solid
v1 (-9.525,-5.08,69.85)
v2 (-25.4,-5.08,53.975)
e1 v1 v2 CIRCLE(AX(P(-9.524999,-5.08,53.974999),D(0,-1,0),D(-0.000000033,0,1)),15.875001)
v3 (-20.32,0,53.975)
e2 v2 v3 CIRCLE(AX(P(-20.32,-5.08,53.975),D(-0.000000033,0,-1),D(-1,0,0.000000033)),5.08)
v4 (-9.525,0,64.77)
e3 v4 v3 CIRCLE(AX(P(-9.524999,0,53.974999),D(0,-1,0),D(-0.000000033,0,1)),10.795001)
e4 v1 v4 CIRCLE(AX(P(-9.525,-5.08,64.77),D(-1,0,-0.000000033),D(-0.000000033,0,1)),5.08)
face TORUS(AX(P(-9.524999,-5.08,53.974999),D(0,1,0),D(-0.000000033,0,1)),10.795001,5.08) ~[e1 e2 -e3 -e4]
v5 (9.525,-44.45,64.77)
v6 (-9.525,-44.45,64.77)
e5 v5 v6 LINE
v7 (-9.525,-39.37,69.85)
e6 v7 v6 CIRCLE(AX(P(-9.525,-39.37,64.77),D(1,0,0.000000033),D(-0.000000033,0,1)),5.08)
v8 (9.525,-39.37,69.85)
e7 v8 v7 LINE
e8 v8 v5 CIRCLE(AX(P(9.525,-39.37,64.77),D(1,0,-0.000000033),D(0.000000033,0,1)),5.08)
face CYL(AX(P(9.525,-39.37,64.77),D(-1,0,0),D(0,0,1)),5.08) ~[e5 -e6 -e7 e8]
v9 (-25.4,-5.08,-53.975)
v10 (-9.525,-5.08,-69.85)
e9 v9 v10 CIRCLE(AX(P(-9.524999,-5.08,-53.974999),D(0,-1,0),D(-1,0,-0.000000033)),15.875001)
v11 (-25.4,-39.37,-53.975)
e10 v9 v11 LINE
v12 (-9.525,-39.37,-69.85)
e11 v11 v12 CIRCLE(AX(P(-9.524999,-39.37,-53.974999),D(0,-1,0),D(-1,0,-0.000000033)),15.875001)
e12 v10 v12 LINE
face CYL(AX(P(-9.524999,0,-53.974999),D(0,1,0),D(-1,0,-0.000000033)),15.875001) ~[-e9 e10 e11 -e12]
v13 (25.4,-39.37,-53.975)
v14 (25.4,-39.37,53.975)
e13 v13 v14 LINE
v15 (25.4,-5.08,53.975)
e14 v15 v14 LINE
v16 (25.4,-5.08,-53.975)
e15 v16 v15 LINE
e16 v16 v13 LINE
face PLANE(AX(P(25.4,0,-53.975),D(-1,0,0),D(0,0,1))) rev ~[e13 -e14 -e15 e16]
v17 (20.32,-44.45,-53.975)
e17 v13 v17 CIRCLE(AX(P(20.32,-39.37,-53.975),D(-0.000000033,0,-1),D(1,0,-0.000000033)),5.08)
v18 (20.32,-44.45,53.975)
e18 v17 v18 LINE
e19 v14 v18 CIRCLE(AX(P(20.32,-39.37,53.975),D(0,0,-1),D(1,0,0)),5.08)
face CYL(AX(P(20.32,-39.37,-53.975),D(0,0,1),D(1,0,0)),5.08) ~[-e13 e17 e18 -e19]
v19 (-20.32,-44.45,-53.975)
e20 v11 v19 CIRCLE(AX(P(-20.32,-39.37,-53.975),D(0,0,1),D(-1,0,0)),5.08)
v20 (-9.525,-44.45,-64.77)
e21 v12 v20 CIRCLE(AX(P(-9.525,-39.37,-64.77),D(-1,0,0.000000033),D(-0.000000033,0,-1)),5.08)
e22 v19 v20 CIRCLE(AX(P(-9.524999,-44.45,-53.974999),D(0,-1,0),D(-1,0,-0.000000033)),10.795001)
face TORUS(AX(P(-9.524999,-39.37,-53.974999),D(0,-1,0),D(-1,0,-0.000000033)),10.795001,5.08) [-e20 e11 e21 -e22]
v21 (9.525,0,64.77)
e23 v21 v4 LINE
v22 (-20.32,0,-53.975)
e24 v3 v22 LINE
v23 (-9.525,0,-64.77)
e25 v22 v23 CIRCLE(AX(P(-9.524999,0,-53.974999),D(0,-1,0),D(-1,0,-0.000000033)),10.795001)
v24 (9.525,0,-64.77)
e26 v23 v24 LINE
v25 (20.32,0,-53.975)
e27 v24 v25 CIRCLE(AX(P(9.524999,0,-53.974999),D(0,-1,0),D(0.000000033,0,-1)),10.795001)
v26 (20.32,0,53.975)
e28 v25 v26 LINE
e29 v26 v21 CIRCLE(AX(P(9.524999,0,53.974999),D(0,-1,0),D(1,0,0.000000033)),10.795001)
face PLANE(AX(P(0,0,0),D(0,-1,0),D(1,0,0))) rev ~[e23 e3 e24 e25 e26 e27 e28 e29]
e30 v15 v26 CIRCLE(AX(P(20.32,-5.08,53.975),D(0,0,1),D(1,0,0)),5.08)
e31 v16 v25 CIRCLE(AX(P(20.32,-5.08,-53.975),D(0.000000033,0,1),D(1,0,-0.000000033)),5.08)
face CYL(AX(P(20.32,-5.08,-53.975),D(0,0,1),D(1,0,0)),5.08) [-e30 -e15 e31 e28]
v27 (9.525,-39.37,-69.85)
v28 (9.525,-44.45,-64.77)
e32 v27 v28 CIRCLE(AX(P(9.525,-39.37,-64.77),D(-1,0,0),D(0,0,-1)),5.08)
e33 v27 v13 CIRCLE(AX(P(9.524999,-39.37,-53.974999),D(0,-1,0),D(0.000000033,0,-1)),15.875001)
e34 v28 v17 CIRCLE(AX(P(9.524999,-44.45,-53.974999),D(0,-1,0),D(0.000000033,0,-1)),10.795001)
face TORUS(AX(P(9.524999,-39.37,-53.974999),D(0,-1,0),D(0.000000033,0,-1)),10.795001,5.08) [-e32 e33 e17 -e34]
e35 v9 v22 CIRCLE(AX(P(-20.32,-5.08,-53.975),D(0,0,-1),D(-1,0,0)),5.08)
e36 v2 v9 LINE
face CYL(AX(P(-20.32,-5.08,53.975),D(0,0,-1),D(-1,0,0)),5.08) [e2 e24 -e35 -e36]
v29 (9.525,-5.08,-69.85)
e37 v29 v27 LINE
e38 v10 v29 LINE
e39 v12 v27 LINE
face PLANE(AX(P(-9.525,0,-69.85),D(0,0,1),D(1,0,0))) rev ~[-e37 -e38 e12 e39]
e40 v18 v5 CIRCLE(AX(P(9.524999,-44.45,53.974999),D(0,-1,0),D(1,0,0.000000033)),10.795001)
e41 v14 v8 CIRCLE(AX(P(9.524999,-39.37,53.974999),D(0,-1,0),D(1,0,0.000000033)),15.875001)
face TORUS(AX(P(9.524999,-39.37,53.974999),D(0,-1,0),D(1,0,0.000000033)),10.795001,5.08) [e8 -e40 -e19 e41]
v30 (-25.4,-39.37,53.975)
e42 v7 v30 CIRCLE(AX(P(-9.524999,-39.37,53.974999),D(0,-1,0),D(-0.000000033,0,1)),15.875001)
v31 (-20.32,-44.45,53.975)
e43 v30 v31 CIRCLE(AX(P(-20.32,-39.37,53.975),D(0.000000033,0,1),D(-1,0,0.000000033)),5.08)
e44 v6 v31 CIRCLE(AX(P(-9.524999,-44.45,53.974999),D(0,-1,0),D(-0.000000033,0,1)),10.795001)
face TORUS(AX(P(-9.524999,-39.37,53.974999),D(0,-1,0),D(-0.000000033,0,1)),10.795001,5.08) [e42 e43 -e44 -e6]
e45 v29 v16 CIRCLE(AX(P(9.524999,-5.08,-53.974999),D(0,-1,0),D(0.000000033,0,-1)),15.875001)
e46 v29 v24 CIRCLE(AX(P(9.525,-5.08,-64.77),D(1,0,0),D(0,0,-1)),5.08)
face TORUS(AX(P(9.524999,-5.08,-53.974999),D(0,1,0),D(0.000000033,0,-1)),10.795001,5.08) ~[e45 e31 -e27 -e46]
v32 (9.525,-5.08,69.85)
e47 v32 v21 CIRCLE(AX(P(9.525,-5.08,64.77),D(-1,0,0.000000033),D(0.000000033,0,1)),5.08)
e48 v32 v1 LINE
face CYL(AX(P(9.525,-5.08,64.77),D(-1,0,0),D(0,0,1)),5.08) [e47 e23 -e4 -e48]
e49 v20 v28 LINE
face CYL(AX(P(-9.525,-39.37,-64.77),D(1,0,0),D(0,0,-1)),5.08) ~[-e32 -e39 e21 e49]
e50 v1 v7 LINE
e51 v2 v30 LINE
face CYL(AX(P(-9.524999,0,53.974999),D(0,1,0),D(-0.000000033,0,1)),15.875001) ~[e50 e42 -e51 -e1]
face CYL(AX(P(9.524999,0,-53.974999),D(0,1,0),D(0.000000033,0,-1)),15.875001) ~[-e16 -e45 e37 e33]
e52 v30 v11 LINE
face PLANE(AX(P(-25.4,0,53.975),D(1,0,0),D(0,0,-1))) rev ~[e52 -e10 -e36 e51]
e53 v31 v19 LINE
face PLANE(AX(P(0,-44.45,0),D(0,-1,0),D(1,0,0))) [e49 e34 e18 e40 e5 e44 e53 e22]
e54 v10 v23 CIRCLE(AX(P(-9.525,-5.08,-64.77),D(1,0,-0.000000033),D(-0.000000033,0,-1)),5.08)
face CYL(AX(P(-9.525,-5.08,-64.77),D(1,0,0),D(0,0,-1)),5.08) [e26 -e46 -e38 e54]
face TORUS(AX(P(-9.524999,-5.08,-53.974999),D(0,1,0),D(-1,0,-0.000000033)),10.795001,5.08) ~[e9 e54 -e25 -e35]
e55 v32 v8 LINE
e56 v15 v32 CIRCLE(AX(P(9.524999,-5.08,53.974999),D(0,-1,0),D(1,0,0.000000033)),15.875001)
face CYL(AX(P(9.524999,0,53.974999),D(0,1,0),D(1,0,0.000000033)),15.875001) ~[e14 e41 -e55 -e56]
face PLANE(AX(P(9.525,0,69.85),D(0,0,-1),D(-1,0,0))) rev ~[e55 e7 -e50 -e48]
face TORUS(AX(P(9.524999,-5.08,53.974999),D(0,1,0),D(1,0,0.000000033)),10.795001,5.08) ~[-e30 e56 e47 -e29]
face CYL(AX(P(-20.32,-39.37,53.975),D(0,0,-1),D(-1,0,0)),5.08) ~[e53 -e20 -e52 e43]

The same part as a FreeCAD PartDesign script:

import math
import FreeCAD as App
import Part
import Sketcher

V = App.Vector
Q = App.Units.Quantity


def edges_at(feature, points):
    """Names of the edges that pass closest to the given points."""
    edges = feature.Shape.Edges
    near = lambda p: min(range(len(edges)), key=lambda i: edges[i].distToShape(Part.Vertex(*p))[0])
    return sorted({f"Edge{near(p) + 1}" for p in points})

doc = App.newDocument("Part")
body = doc.addObject("PartDesign::Body", "Body")

# Sketch on XZ plane
sketch1 = body.newObject("Sketcher::SketchObject", "Sketch")
sketch1.AttachmentSupport = (doc.getObject("XZ_Plane"), [""])
sketch1.MapMode = "FlatFace"
sketch1.addGeometry(Part.ArcOfCircle(Part.Circle(V(10, 54, 0), V(0, 0, 1), 16), math.radians(0), math.radians(90)), False)
sketch1.addGeometry(Part.LineSegment(V(10, 70, 0), V(-10, 70, 0)), False)
sketch1.addGeometry(Part.ArcOfCircle(Part.Circle(V(-10, 54, 0), V(0, 0, 1), 16), math.radians(90), math.radians(180)), False)
sketch1.addGeometry(Part.LineSegment(V(-25, 54, 0), V(-25, -54, 0)), False)
sketch1.addGeometry(Part.ArcOfCircle(Part.Circle(V(-10, -54, 0), V(0, 0, 1), 16), math.radians(-180), math.radians(-90)), False)
sketch1.addGeometry(Part.LineSegment(V(-10, -70, 0), V(10, -70, 0)), False)
sketch1.addGeometry(Part.ArcOfCircle(Part.Circle(V(10, -54, 0), V(0, 0, 1), 16), math.radians(-90), math.radians(0)), False)
sketch1.addGeometry(Part.LineSegment(V(25, -54, 0), V(25, 54, 0)), False)
sketch1.addConstraint(Sketcher.Constraint("Tangent", 0, 2, 1, 1))
sketch1.addConstraint(Sketcher.Constraint("Tangent", 1, 2, 2, 1))
sketch1.addConstraint(Sketcher.Constraint("Tangent", 2, 2, 3, 1))
sketch1.addConstraint(Sketcher.Constraint("Tangent", 3, 2, 4, 1))
sketch1.addConstraint(Sketcher.Constraint("Tangent", 4, 2, 5, 1))
sketch1.addConstraint(Sketcher.Constraint("Tangent", 5, 2, 6, 1))
sketch1.addConstraint(Sketcher.Constraint("Tangent", 6, 2, 7, 1))
sketch1.addConstraint(Sketcher.Constraint("Tangent", 7, 2, 0, 1))
sketch1.addConstraint(Sketcher.Constraint("Horizontal", 1))
sketch1.addConstraint(Sketcher.Constraint("Vertical", 3))
sketch1.addConstraint(Sketcher.Constraint("Horizontal", 5))
sketch1.addConstraint(Sketcher.Constraint("Vertical", 7))
sketch1.addConstraint(Sketcher.Constraint("Equal", 0, 2))
sketch1.addConstraint(Sketcher.Constraint("Equal", 2, 4))
sketch1.addConstraint(Sketcher.Constraint("Equal", 4, 6))
sketch1.addConstraint(Sketcher.Constraint("Symmetric", 0, 3, 4, 3, -1, 1))
sketch1.addConstraint(Sketcher.Constraint("DistanceX", 2, 2, -1, 1, Q("1 in")))
sketch1.addConstraint(Sketcher.Constraint("Radius", 0, Q("0.625 in")))
sketch1.addConstraint(Sketcher.Constraint("DistanceY", 3, 2, 3, 1, Q("4.25 in")))
pad1 = body.newObject("PartDesign::Pad", "Pad")
pad1.Profile = sketch1
pad1.Length = Q("1.75 in")
doc.recompute()

fillet = body.newObject("PartDesign::Fillet", "Fillet")
fillet.Base = (pad1, edges_at(pad1, [
    (-9.525, -22.225, 69.85),
    (-25.4, -22.225, 53.975),
    (-20.75, 0, 65.2),
    (-20.75, -44.45, 65.2),
    (20.75, 0, 65.2),
    (0, 0, 69.85),
    (-25.4, 0, 0),
    (-20.75, 0, -65.2),
    (0, 0, -69.85),
    (20.75, 0, -65.2),
    (25.4, 0, 0),
]))
fillet.Radius = Q("0.2 in")

doc.recompute()
